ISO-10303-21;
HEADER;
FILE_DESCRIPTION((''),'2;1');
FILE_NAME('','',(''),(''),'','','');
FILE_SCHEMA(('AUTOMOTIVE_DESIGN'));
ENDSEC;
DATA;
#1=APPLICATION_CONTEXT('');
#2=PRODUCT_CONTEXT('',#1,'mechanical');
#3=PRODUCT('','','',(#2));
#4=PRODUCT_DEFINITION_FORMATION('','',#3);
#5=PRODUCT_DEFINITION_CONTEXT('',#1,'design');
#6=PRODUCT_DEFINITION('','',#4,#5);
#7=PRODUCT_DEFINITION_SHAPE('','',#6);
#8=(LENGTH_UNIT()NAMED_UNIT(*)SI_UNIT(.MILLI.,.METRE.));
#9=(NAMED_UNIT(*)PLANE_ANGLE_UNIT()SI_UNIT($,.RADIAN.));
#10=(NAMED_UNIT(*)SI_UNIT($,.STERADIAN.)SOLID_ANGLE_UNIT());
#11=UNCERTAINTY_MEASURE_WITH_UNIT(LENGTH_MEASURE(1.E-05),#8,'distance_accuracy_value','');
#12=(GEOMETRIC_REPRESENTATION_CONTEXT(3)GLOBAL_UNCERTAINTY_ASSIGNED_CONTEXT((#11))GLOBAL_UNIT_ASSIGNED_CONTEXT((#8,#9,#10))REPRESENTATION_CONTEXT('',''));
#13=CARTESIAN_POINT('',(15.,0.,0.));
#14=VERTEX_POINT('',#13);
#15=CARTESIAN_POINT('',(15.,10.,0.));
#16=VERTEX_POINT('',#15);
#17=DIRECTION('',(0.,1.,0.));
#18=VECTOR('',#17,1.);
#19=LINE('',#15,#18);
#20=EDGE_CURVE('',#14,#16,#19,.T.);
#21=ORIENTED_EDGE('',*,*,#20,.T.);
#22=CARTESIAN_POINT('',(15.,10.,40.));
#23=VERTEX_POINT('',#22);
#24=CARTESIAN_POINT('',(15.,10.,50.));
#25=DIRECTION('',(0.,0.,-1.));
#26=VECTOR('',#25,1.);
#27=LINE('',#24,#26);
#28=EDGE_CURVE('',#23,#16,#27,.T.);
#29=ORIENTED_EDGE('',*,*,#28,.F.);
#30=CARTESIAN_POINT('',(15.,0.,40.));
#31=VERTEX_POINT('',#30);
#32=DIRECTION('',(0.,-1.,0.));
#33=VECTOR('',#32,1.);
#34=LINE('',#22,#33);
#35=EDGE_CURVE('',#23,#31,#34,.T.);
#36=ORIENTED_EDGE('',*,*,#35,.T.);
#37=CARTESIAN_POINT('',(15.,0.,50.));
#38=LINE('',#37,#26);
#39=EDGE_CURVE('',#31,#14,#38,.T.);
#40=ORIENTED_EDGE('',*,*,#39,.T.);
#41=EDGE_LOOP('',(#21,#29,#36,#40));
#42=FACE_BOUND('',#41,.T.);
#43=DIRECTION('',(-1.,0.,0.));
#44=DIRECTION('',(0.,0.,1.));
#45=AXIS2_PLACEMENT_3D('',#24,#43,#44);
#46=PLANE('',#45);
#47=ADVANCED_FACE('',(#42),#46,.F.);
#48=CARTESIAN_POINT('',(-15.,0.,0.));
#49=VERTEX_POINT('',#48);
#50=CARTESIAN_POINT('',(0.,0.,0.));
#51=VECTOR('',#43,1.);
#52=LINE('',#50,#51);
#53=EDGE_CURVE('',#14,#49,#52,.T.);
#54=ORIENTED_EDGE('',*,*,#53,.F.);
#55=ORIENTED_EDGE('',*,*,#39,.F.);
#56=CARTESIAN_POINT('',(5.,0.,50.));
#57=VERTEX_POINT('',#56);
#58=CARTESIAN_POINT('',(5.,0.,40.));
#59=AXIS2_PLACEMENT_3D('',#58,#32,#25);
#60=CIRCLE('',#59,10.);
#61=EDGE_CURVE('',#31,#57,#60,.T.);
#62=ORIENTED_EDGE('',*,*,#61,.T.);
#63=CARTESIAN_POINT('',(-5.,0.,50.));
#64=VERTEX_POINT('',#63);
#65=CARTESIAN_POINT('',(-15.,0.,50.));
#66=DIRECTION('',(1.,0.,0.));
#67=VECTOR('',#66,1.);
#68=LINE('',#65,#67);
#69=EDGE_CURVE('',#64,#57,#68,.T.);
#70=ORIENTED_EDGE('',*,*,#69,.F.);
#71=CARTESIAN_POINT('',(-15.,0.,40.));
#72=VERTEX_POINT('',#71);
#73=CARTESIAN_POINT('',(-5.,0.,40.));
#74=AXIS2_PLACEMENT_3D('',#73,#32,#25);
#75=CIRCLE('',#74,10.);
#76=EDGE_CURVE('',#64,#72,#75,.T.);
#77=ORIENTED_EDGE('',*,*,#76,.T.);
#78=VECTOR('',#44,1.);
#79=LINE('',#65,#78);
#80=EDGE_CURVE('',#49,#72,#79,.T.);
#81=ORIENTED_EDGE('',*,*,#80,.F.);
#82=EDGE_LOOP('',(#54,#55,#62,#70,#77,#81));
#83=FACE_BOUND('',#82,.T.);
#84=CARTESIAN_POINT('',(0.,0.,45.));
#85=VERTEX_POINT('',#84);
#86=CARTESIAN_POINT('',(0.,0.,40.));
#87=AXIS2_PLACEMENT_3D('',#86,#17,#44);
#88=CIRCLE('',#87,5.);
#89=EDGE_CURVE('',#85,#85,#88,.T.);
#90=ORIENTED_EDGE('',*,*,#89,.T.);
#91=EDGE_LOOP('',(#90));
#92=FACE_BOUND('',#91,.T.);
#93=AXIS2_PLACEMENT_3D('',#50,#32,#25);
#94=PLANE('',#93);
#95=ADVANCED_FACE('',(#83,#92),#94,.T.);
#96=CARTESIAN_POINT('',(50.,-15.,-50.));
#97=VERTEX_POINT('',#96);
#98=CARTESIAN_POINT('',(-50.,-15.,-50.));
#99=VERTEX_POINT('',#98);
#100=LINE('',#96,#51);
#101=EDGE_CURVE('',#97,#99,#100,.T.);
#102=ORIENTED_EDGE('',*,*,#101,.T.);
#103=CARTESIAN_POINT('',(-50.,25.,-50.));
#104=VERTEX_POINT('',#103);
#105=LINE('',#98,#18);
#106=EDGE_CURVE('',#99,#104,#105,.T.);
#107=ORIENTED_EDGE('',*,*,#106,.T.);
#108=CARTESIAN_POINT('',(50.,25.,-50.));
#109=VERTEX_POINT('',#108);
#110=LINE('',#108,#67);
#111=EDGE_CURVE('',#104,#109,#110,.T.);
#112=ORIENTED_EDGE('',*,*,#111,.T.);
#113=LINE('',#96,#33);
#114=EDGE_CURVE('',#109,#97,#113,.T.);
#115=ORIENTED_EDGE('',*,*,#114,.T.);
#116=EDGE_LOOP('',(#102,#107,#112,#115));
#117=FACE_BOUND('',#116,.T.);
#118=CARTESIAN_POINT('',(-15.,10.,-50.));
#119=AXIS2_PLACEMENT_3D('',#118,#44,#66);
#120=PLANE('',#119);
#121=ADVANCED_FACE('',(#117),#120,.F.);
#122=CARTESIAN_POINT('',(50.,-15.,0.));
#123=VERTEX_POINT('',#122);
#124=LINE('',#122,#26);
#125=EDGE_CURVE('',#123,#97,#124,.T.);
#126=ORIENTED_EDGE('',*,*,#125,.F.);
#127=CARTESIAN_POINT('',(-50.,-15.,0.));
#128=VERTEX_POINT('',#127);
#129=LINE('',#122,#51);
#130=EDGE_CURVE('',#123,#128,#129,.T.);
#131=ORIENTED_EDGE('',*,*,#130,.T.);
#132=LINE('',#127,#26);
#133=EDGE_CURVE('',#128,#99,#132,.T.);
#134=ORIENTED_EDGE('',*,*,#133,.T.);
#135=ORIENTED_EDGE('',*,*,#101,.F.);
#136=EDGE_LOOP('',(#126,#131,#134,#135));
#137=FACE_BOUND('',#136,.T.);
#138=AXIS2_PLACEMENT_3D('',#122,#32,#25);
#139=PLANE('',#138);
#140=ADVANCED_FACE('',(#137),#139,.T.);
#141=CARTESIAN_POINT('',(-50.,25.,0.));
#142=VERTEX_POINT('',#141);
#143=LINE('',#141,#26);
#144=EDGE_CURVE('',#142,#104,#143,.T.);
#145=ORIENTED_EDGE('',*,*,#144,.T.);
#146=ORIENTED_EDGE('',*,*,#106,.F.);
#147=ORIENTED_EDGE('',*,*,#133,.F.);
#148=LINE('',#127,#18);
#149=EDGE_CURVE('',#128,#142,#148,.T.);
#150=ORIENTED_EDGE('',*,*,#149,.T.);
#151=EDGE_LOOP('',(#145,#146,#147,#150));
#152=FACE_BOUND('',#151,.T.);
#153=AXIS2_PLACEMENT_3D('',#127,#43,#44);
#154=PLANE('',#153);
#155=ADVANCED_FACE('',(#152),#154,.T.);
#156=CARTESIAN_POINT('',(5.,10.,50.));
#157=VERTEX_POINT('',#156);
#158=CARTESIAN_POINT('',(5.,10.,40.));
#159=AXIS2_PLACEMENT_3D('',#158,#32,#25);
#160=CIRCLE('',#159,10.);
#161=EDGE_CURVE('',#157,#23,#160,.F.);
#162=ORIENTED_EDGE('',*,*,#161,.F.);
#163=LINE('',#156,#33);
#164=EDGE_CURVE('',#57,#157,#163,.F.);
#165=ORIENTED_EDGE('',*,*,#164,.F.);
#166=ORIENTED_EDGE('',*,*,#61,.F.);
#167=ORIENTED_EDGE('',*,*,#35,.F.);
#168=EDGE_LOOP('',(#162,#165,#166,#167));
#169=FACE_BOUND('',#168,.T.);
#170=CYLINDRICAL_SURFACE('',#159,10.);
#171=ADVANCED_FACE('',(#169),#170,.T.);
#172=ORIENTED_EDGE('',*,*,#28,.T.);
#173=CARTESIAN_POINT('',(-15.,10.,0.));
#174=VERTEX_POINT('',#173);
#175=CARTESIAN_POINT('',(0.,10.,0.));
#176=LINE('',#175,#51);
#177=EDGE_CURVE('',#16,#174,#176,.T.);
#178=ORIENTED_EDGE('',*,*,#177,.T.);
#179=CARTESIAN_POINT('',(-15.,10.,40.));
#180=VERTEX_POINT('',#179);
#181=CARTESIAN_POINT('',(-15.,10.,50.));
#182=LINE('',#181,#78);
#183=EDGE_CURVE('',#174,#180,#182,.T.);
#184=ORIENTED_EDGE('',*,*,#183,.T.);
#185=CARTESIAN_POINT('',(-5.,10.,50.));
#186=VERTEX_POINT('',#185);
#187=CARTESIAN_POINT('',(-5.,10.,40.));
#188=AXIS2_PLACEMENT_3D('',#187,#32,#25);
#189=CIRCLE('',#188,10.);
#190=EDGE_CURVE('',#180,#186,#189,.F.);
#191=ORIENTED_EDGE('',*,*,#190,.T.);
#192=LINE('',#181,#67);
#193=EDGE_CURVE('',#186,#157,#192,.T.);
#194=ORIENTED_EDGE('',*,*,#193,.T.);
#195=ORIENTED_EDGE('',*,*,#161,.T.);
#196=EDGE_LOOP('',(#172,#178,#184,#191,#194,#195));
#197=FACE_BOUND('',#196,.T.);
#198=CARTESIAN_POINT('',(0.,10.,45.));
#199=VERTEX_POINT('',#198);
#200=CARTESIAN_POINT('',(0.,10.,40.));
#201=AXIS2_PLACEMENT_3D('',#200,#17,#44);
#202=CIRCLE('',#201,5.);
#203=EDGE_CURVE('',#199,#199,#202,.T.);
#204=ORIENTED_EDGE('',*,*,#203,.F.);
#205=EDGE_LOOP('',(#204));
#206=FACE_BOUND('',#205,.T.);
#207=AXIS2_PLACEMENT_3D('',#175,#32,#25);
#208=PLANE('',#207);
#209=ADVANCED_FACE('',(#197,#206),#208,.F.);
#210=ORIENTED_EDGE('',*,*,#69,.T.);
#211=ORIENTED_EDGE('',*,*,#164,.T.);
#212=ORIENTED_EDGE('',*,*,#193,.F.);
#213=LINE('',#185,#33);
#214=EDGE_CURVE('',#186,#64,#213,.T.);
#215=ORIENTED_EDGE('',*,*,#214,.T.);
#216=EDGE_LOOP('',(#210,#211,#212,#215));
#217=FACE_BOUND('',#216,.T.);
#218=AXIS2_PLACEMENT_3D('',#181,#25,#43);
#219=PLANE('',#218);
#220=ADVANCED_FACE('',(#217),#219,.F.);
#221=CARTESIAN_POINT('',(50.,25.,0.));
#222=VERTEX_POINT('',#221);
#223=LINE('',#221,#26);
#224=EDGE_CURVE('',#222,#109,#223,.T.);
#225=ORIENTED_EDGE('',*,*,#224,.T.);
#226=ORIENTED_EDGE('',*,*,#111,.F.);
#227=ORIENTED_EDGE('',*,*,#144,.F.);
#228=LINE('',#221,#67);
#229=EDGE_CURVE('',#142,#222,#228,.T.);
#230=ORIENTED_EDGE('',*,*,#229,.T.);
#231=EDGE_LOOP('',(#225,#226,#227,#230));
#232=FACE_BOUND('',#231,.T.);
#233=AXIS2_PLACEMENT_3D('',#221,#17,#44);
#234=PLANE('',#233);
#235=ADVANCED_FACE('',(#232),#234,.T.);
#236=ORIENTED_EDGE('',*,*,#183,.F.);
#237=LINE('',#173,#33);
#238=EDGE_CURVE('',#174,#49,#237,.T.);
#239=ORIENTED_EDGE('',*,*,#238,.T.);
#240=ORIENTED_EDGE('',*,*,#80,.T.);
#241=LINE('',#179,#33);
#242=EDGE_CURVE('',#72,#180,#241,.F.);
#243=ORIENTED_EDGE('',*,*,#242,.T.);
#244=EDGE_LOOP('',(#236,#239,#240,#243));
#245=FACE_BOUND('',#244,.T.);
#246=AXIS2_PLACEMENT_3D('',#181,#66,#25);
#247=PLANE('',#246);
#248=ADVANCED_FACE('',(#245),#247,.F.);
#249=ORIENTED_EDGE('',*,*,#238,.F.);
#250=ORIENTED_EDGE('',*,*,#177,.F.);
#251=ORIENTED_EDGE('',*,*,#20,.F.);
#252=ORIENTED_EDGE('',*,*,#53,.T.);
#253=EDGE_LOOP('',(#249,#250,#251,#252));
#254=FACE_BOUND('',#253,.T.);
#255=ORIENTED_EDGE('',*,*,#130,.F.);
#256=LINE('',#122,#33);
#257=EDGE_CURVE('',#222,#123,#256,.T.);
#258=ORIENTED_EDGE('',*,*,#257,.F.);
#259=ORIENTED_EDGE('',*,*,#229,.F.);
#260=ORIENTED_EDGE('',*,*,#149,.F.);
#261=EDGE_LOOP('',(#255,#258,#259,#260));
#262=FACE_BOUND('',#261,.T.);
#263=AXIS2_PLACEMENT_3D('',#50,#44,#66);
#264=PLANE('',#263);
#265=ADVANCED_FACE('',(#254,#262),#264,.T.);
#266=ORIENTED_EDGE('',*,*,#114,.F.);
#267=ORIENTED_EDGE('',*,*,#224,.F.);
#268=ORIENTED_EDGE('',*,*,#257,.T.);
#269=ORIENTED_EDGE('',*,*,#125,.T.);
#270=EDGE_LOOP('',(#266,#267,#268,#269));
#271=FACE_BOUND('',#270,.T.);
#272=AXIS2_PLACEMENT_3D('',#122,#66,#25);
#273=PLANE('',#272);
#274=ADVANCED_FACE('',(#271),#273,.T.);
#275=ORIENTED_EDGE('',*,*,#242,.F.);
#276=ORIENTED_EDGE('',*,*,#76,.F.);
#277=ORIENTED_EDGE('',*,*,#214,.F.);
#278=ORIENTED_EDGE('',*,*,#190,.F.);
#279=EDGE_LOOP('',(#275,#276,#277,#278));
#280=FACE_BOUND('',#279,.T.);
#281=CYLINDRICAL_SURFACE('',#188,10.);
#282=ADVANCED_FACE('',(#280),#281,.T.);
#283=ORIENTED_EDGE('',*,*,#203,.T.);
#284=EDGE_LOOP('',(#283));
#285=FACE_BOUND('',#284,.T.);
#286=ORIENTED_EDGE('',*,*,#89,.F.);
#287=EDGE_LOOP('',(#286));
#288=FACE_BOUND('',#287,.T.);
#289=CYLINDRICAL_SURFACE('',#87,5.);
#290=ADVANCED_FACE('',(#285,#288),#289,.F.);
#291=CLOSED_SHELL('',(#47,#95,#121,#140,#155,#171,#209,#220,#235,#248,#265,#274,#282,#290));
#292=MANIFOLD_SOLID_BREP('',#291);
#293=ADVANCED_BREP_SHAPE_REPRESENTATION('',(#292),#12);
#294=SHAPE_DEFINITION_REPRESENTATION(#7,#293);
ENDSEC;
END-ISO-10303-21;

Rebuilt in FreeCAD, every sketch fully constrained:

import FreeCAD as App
import Part
import Sketcher
from FreeCAD import Vector


def edges_at(feature, points):
    """Names of the edges that pass closest to the given points."""
    edges = feature.Shape.Edges
    near = lambda p: min(range(len(edges)), key=lambda i: edges[i].distToShape(Part.Vertex(*p))[0])
    return sorted({f"Edge{near(p) + 1}" for p in points})


def add_polygon(sketch, points):
    """Adds a closed chain of lines whose ends are joined by coincident constraints."""
    first, n = sketch.GeometryCount, len(points)
    for a, b in zip(points, points[1:] + points[:1]):
        sketch.addGeometry(Part.LineSegment(App.Vector(*a, 0), App.Vector(*b, 0)), False)
    for i in range(n):
        sketch.addConstraint(Sketcher.Constraint("Coincident", first + i, 2, first + (i + 1) % n, 1))

doc = App.newDocument("Part")
params = doc.addObject("Spreadsheet::Sheet", "Params")
for row, (alias, value) in enumerate([
    ("sketch1_width", "30 mm"),
    ("sketch1_height", "100 mm"),
    ("pad1_length", "10 mm"),
    ("sketch2_diameter", "10 mm"),
    ("pocket1_length", "10 mm"),
    ("sketch3_width", "100 mm"),
    ("sketch3_height", "40 mm"),
    ("pad2_length", "50 mm"),
    ("fillet_radius", "10 mm"),
], start=1):
    params.set(f"A{row}", alias)
    params.set(f"B{row}", "=" + value)
    params.setAlias(f"B{row}", alias)

body = doc.addObject("PartDesign::Body", "Body")

# Sketch on XZ plane
sketch1 = body.newObject("Sketcher::SketchObject", "Sketch")
sketch1.AttachmentSupport = (doc.getObject("XZ_Plane"), [""])
sketch1.MapMode = "FlatFace"
add_polygon(sketch1, [(-15, -50), (-15, 50), (15, 50), (15, -50)])  # lines 0-3
sketch1.addConstraint([
    Sketcher.Constraint("Vertical", 0),
    Sketcher.Constraint("Horizontal", 1),
    Sketcher.Constraint("Vertical", 2),
    Sketcher.Constraint("Horizontal", 3),
    Sketcher.Constraint("Symmetric", 0, 2, 2, 2, -1, 1),
    Sketcher.Constraint("DistanceX", 1, 1, 1, 2, 30.0),
    Sketcher.Constraint("DistanceY", 0, 1, 0, 2, 100.0),
])
sketch1.setExpression("Constraints[9]", "Params.sketch1_width")
sketch1.setExpression("Constraints[10]", "Params.sketch1_height")
pad1 = body.newObject("PartDesign::Pad", "Pad")
pad1.Profile = sketch1
pad1.setExpression("Length", "Params.pad1_length")
pad1.Reversed = True

# Sketch on XZ plane
sketch2 = body.newObject("Sketcher::SketchObject", "Sketch001")
sketch2.AttachmentSupport = (doc.getObject("XZ_Plane"), [""])
sketch2.MapMode = "FlatFace"
sketch2.AttachmentOffset = App.Placement(Vector(0, 0, -10), App.Rotation())
sketch2.addGeometry(Part.Circle(Vector(0, 40, 0), Vector(0, 0, 1), 5), False)
sketch2.addConstraint([
    Sketcher.Constraint("PointOnObject", 0, 3, -2),
    Sketcher.Constraint("Diameter", 0, 10.0),
    Sketcher.Constraint("DistanceY", -1, 1, 0, 3, 40.0),
])
sketch2.setExpression("Constraints[1]", "Params.sketch2_diameter")
pocket1 = body.newObject("PartDesign::Pocket", "Pocket")
pocket1.Profile = sketch2
pocket1.setExpression("Length", "Params.pocket1_length")
pocket1.Reversed = True

# Sketch on XY plane
sketch3 = body.newObject("Sketcher::SketchObject", "Sketch002")
sketch3.AttachmentSupport = (doc.getObject("XY_Plane"), [""])
sketch3.MapMode = "FlatFace"
sketch3.AttachmentOffset = App.Placement(Vector(0, 0, -50), App.Rotation())
add_polygon(sketch3, [(50, 25), (50, -15), (-50, -15), (-50, 25)])  # lines 0-3
sketch3.addConstraint([
    Sketcher.Constraint("Vertical", 0),
    Sketcher.Constraint("Horizontal", 1),
    Sketcher.Constraint("Vertical", 2),
    Sketcher.Constraint("Horizontal", 3),
    Sketcher.Constraint("DistanceX", 1, 2, 1, 1, 100.0),
    Sketcher.Constraint("DistanceY", 0, 2, 0, 1, 40.0),
    Sketcher.Constraint("DistanceX", -1, 1, 0, 2, 50.0),
    Sketcher.Constraint("DistanceY", 0, 2, -1, 1, 15.0),
])
sketch3.setExpression("Constraints[8]", "Params.sketch3_width")
sketch3.setExpression("Constraints[9]", "Params.sketch3_height")
pad2 = body.newObject("PartDesign::Pad", "Pad001")
pad2.Profile = sketch3
pad2.setExpression("Length", "Params.pad2_length")
doc.recompute()

fillet = body.newObject("PartDesign::Fillet", "Fillet")
fillet.Base = (pad2, edges_at(pad2, [(15, 5, 50), (-15, 5, 50)]))
fillet.setExpression("Radius", "Params.fillet_radius")

doc.recompute()
